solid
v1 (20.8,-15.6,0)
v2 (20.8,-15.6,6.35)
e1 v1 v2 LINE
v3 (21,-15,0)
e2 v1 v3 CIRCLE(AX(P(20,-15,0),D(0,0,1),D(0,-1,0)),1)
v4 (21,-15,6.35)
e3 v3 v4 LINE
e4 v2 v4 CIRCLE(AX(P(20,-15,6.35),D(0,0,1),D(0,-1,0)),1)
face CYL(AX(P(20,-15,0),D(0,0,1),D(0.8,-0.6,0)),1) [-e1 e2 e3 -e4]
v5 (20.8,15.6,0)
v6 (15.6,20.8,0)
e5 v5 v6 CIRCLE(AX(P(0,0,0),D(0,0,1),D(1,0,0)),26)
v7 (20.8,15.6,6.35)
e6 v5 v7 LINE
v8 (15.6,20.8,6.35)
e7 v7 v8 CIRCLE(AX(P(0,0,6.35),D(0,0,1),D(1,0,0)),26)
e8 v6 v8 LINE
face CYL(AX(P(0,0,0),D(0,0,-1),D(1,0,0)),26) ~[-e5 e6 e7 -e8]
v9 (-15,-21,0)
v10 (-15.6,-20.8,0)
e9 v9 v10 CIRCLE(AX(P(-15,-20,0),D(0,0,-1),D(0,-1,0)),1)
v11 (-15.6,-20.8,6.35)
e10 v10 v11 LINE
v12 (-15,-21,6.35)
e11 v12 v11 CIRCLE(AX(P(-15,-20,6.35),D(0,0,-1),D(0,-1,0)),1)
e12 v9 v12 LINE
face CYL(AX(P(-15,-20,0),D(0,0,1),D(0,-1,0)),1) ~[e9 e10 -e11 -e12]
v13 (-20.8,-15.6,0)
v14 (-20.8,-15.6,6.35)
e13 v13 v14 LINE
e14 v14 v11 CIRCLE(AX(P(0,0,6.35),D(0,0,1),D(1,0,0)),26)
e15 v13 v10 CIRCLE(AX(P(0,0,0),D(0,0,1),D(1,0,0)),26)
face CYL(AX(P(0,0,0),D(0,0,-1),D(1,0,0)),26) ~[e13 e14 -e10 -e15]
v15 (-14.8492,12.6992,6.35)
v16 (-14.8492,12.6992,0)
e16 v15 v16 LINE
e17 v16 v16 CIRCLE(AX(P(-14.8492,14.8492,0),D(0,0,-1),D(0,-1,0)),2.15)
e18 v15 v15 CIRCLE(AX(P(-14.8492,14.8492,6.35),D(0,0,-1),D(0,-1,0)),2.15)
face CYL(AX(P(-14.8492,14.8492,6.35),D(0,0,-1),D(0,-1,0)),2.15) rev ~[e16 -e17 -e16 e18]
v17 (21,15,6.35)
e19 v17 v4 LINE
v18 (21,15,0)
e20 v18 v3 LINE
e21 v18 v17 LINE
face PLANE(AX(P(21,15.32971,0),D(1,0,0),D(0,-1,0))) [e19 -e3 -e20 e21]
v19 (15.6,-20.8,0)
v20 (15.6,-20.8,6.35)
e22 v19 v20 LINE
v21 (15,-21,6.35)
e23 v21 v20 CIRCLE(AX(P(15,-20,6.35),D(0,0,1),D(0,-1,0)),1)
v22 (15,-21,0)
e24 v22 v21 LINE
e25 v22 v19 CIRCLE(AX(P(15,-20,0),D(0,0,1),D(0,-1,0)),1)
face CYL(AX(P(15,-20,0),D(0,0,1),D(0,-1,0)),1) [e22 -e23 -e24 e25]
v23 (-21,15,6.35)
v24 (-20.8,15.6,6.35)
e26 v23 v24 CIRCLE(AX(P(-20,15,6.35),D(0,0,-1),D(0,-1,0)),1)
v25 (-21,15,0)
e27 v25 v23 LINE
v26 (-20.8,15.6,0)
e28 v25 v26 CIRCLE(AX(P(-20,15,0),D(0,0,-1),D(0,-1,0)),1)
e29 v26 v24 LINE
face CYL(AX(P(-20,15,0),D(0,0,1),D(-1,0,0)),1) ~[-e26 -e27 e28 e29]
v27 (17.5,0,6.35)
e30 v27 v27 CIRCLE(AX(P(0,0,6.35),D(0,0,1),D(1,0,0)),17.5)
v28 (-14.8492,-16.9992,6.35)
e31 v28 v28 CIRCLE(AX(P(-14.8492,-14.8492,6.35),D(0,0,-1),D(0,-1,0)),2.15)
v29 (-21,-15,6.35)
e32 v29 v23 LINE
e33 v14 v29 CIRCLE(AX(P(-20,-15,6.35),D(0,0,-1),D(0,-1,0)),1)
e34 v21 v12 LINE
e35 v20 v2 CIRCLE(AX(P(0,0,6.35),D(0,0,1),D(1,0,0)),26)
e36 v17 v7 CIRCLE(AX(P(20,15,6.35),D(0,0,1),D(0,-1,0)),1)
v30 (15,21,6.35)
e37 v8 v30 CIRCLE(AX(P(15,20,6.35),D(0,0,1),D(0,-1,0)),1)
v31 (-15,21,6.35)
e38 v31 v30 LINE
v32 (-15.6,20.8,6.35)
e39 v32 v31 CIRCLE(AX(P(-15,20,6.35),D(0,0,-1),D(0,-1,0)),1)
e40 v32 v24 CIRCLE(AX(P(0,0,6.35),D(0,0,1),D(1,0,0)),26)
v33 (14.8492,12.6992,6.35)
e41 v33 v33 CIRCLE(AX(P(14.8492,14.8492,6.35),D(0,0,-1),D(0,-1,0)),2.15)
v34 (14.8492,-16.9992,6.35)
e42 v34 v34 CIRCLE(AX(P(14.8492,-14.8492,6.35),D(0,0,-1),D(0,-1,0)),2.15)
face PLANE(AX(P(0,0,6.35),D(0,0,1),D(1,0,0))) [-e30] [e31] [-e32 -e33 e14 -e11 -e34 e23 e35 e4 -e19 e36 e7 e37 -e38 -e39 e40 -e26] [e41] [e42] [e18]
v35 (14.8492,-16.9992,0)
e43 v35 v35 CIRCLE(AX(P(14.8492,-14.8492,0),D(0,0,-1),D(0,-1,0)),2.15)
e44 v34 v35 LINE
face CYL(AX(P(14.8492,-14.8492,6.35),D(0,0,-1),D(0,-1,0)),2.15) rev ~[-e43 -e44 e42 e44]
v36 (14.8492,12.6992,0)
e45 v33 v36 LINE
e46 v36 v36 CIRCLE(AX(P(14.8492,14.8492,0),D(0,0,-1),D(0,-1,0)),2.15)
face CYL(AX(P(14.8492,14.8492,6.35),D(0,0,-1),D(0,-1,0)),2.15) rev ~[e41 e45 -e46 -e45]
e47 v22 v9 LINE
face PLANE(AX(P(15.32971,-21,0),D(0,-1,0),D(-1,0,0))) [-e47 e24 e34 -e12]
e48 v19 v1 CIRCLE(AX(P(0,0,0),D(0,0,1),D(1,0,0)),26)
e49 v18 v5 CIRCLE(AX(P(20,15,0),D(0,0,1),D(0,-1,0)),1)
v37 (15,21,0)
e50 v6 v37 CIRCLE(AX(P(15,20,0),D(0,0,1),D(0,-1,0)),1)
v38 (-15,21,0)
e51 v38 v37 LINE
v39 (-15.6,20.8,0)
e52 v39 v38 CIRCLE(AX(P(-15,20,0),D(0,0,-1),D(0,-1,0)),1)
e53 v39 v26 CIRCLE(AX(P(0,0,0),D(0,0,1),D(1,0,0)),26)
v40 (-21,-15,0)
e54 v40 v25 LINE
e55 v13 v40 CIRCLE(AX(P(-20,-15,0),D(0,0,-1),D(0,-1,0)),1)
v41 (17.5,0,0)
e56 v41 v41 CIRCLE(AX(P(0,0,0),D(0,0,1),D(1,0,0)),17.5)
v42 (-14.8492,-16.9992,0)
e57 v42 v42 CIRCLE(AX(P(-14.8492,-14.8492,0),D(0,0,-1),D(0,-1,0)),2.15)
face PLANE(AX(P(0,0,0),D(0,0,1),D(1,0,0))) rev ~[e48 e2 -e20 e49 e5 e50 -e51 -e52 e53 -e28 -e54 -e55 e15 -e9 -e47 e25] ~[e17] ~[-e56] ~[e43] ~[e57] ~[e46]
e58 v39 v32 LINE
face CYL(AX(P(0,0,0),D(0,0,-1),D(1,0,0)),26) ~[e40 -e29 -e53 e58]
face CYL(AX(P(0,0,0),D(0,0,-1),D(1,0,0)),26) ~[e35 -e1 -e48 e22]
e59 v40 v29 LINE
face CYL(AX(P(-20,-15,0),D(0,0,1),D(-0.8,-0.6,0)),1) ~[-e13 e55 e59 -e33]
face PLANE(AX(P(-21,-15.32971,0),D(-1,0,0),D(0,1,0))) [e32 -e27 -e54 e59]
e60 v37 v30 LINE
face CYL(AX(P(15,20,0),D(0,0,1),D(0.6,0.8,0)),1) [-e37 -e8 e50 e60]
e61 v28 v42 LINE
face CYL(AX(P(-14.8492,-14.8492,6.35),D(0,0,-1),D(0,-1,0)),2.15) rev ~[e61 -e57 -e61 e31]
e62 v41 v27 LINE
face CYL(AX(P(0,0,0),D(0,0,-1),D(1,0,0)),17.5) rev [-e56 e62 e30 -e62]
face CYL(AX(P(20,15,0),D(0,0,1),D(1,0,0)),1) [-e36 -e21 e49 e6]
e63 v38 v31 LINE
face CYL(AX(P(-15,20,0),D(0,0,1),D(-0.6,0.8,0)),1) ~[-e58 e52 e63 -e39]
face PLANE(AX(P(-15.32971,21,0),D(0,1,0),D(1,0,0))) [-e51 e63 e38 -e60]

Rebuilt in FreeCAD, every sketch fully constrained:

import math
import FreeCAD as App
import Part
import Sketcher

V = App.Vector
Q = App.Units.Quantity


def edges_at(feature, points):
    """Names of the edges that pass closest to the given points."""
    edges = feature.Shape.Edges
    near = lambda p: min(range(len(edges)), key=lambda i: edges[i].distToShape(Part.Vertex(*p))[0])
    return sorted({f"Edge{near(p) + 1}" for p in points})

doc = App.newDocument("Part")
params = doc.addObject("Spreadsheet::Sheet", "Params")
for row, (alias, value) in enumerate([
    ("sketch1_diameter", "35 mm"),
    ("sketch1_radius", "26 mm"),
    ("pad1_length", "6.35 mm"),
    ("sketch2_diameter", "4.3 mm"),
    ("hole_diameter", "4.3 mm"),
    ("fillet_radius", "1 mm"),
], start=1):
    params.set(f"A{row}", alias)
    params.set(f"B{row}", "=" + value)
    params.setAlias(f"B{row}", alias)

body = doc.addObject("PartDesign::Body", "Body")

# Sketch on XY plane
sketch1 = doc.addObject("Sketcher::SketchObject", "Sketch")
body.addObject(sketch1)
sketch1.AttachmentSupport = (doc.XY_Plane, [""])
sketch1.MapMode = "FlatFace"
sketch1.addGeometry([
    Part.LineSegment(V(-15, -21, 0), V(15, -21, 0)),  # 0
    Part.ArcOfCircle(Part.Circle(V(0, 0, 0), V(0, 0, 1), 26), math.radians(-53.87), math.radians(-36.13)),  # 1
    Part.LineSegment(V(21, -15, 0), V(21, 15, 0)),  # 2
    Part.ArcOfCircle(Part.Circle(V(0, 0, 0), V(0, 0, 1), 26), math.radians(36.13), math.radians(53.87)),  # 3
    Part.LineSegment(V(15, 21, 0), V(-15, 21, 0)),  # 4
    Part.ArcOfCircle(Part.Circle(V(0, 0, 0), V(0, 0, 1), 26), math.radians(126.13), math.radians(143.87)),  # 5
    Part.LineSegment(V(-21, 15, 0), V(-21, -15, 0)),  # 6
    Part.ArcOfCircle(Part.Circle(V(0, 0, 0), V(0, 0, 1), 26), math.radians(-143.87), math.radians(-126.13)),  # 7
    Part.Circle(V(0, 0, 0), V(0, 0, 1), 18),  # 8
], False)
sketch1.addConstraint([
    Sketcher.Constraint("Coincident", 0, 2, 1, 1),
    Sketcher.Constraint("Coincident", 1, 2, 2, 1),
    Sketcher.Constraint("Coincident", 2, 2, 3, 1),
    Sketcher.Constraint("Coincident", 3, 2, 4, 1),
    Sketcher.Constraint("Coincident", 4, 2, 5, 1),
    Sketcher.Constraint("Coincident", 5, 2, 6, 1),
    Sketcher.Constraint("Coincident", 6, 2, 7, 1),
    Sketcher.Constraint("Coincident", 7, 2, 0, 1),
    Sketcher.Constraint("Horizontal", 0),
    Sketcher.Constraint("Vertical", 2),
    Sketcher.Constraint("Horizontal", 4),
    Sketcher.Constraint("Vertical", 6),
    Sketcher.Constraint("Coincident", 1, 3, -1, 1),
    Sketcher.Constraint("Coincident", 3, 3, -1, 1),
    Sketcher.Constraint("Coincident", 5, 3, -1, 1),
    Sketcher.Constraint("Coincident", 7, 3, -1, 1),
    Sketcher.Constraint("Coincident", 8, 3, -1, 1),
    Sketcher.Constraint("Equal", 1, 3),
    Sketcher.Constraint("Equal", 3, 5),
    Sketcher.Constraint("Equal", 5, 7),
    Sketcher.Constraint("Horizontal", 2, 2, 5, 2),
    Sketcher.Constraint("Vertical", 0, 2, 3, 2),
    Sketcher.Constraint("Equal", 4, 2),
    Sketcher.Constraint("Diameter", 8, Q("35 mm")),
    Sketcher.Constraint("Radius", 1, Q("26 mm")),
    Sketcher.Constraint("DistanceY", 0, 2, -1, 1, Q("21 mm")),
])
sketch1.setExpression("Constraints[23]", "Params.sketch1_diameter")
sketch1.setExpression("Constraints[24]", "Params.sketch1_radius")
pad1 = doc.addObject("PartDesign::Pad", "Pad")
body.addObject(pad1)
pad1.Profile = sketch1
pad1.setExpression("Length", "Params.pad1_length")

# Sketch on XY plane
sketch2 = doc.addObject("Sketcher::SketchObject", "Sketch001")
body.addObject(sketch2)
sketch2.AttachmentSupport = (doc.XY_Plane, [""])
sketch2.MapMode = "FlatFace"
sketch2.AttachmentOffset = App.Placement(V(0, 0, 6.35), App.Rotation())
sketch2.addGeometry([
    Part.Circle(V(-14.8, 14.8, 0), V(0, 0, 1), 2.1),
    Part.Circle(V(14.8, 14.8, 0), V(0, 0, 1), 2.1),
    Part.Circle(V(14.8, -14.8, 0), V(0, 0, 1), 2.1),
    Part.Circle(V(-14.8, -14.8, 0), V(0, 0, 1), 2.1),
], False)
sketch2.addConstraint([
    Sketcher.Constraint("Equal", 0, 1),
    Sketcher.Constraint("Equal", 1, 2),
    Sketcher.Constraint("Equal", 2, 3),
    Sketcher.Constraint("Symmetric", 0, 3, 2, 3, -1, 1),
    Sketcher.Constraint("Symmetric", 1, 3, 3, 3, -1, 1),
    Sketcher.Constraint("Symmetric", 0, 3, 1, 3, -2),
    Sketcher.Constraint("Diameter", 0, Q("4.3 mm")),
    Sketcher.Constraint("DistanceX", 0, 3, -1, 1, Q("14.8492 mm")),
    Sketcher.Constraint("DistanceY", -1, 1, 0, 3, Q("14.8492 mm")),
])
sketch2.setExpression("Constraints[6]", "Params.sketch2_diameter")
doc.recompute()
hole = doc.addObject("PartDesign::Hole", "Hole")
body.addObject(hole)
hole.Profile = sketch2
hole.ThreadType = "None"
hole.setExpression("Diameter", "Params.hole_diameter")
hole.DepthType = "ThroughAll"
doc.recompute()

fillet = doc.addObject("PartDesign::Fillet", "Fillet")
body.addObject(fillet)
fillet.Base = (hole, edges_at(hole, [
    (15.33, -21, 3.175),
    (21, -15.33, 3.175),
    (-21, -15.33, 3.175),
    (-15.33, -21, 3.175),
    (21, 15.33, 3.175),
    (15.33, 21, 3.175),
    (-21, 15.33, 3.175),
    (-15.33, 21, 3.175),
]))
fillet.setExpression("Radius", "Params.fillet_radius")

doc.recompute()
